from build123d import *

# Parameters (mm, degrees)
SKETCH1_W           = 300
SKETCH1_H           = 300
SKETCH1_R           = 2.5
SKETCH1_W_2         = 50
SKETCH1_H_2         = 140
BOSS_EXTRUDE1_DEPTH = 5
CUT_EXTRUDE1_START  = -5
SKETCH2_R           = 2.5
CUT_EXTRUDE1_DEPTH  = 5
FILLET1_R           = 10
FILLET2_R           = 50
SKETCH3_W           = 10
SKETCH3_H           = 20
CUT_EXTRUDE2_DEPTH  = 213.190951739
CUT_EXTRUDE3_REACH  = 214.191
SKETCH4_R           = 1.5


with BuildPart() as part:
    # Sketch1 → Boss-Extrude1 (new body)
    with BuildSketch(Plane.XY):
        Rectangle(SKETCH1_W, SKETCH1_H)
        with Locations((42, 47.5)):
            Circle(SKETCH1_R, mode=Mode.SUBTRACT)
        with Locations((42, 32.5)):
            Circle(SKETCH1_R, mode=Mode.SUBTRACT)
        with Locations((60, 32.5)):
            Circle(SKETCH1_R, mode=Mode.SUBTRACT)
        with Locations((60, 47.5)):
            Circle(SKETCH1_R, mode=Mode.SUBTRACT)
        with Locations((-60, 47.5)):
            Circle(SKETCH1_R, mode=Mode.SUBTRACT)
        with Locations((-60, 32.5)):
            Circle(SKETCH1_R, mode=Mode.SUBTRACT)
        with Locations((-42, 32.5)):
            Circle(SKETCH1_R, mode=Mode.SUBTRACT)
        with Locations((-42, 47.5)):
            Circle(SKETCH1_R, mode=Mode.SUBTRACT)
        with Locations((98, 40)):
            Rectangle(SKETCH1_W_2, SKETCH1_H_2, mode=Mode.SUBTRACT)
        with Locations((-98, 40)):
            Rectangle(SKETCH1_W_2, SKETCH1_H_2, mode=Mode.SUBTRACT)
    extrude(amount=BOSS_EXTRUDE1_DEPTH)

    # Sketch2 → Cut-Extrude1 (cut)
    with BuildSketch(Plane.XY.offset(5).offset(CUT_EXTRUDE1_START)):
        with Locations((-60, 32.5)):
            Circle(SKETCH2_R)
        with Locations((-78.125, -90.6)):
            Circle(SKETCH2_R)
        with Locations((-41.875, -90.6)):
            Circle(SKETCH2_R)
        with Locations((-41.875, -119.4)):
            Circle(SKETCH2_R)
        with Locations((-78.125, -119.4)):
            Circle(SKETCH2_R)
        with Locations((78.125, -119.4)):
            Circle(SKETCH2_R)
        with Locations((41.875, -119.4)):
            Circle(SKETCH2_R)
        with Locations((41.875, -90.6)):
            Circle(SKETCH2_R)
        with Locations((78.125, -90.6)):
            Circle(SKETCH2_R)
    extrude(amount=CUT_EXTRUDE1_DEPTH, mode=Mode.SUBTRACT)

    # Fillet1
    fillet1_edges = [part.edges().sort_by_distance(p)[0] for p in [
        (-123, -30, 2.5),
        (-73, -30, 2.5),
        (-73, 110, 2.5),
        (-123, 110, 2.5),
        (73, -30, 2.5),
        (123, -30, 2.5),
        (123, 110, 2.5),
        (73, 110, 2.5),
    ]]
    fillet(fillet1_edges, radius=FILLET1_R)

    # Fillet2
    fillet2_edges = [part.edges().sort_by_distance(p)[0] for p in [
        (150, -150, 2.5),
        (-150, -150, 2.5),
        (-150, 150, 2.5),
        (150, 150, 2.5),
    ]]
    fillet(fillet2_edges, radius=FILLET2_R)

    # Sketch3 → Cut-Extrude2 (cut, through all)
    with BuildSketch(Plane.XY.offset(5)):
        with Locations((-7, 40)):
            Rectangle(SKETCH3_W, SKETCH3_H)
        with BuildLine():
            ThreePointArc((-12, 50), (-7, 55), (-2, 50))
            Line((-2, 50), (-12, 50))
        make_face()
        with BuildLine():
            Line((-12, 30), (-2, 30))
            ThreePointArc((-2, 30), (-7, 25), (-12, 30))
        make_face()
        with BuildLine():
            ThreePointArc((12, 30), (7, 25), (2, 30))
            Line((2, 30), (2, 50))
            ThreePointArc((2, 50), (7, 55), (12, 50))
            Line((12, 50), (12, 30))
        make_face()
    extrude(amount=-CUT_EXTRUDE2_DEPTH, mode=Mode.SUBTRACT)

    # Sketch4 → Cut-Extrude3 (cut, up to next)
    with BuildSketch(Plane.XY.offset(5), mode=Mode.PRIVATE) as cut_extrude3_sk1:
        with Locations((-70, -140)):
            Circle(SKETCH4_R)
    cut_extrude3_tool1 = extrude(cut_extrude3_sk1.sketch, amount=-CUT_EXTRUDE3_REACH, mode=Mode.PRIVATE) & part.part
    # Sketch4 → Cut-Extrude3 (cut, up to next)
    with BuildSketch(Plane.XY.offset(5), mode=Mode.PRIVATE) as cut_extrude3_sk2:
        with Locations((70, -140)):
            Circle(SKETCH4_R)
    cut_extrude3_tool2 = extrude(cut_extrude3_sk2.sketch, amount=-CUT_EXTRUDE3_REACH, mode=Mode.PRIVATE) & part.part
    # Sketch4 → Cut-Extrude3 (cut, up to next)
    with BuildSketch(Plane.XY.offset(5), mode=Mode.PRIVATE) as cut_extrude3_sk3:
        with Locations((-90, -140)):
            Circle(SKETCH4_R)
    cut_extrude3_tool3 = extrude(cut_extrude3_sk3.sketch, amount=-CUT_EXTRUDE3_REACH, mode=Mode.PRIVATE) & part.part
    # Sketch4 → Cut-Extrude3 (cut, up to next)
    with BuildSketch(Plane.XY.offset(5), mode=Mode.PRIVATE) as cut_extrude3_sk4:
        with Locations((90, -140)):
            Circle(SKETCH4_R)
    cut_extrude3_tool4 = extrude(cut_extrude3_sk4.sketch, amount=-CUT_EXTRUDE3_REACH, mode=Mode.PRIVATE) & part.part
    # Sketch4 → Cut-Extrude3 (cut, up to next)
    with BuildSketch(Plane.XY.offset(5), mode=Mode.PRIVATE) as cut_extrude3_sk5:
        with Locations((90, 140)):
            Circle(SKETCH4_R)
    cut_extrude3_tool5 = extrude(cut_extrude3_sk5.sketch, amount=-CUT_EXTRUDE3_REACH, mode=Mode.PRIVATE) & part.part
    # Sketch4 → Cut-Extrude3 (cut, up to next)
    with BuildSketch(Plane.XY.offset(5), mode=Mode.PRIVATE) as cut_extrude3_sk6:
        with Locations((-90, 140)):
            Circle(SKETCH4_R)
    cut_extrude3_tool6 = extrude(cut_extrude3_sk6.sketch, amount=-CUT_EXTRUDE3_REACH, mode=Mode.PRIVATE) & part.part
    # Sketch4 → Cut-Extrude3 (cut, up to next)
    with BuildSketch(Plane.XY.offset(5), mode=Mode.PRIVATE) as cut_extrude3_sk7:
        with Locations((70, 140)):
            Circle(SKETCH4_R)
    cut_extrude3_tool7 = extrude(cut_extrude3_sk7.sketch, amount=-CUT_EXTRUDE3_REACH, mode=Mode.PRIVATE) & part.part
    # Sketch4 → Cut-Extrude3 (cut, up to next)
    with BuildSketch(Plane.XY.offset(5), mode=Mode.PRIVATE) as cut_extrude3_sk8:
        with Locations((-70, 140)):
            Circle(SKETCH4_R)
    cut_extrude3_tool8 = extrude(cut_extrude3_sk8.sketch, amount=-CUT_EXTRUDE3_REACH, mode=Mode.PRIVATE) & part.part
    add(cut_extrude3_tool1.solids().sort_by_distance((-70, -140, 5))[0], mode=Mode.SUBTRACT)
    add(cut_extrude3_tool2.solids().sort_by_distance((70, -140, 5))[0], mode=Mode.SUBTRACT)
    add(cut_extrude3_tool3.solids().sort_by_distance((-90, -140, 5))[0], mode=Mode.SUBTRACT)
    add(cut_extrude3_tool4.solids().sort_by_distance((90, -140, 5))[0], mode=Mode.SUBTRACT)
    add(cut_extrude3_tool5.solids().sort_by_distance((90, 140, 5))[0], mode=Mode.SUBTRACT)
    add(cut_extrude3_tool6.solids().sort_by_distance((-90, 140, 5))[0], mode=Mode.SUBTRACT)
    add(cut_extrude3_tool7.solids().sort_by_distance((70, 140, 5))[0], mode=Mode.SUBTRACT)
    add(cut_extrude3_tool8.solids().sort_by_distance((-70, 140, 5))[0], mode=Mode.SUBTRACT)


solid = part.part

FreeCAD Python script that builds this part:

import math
import FreeCAD as App
import Part
import Sketcher
from FreeCAD import Vector
Q = App.Units.Quantity


def edges_at(feature, points):
    """Names of the edges that pass closest to the given points."""
    edges = feature.Shape.Edges
    near = lambda p: min(range(len(edges)), key=lambda i: edges[i].distToShape(Part.Vertex(*p))[0])
    return sorted({f"Edge{near(p) + 1}" for p in points})

doc = App.newDocument("Part")
body = doc.addObject("PartDesign::Body", "Body")

# Sketch on XY plane
sketch1 = body.newObject("Sketcher::SketchObject", "Sketch")
sketch1.AttachmentSupport = (doc.getObject("XY_Plane"), [""])
sketch1.MapMode = "FlatFace"
sketch1.addGeometry([
    Part.LineSegment(Vector(-150, 150, 0), Vector(-150, -150, 0)),  # 0
    Part.LineSegment(Vector(-150, -150, 0), Vector(150, -150, 0)),  # 1
    Part.LineSegment(Vector(150, -150, 0), Vector(150, 150, 0)),  # 2
    Part.LineSegment(Vector(150, 150, 0), Vector(-150, 150, 0)),  # 3
    Part.Circle(Vector(-60, 32.5, 0), Vector(0, 0, 1), 2.5),  # 4
    Part.Circle(Vector(-42, 32.5, 0), Vector(0, 0, 1), 2.5),  # 5
    Part.Circle(Vector(42, 32.5, 0), Vector(0, 0, 1), 2.5),  # 6
    Part.Circle(Vector(60, 32.5, 0), Vector(0, 0, 1), 2.5),  # 7
    Part.LineSegment(Vector(-73, -30, 0), Vector(-123, -30, 0)),  # 8
    Part.LineSegment(Vector(-123, -30, 0), Vector(-123, 110, 0)),  # 9
    Part.LineSegment(Vector(-123, 110, 0), Vector(-73, 110, 0)),  # 10
    Part.LineSegment(Vector(-73, 110, 0), Vector(-73, -30, 0)),  # 11
    Part.Circle(Vector(-60, 47.5, 0), Vector(0, 0, 1), 2.5),  # 12
    Part.Circle(Vector(-42, 47.5, 0), Vector(0, 0, 1), 2.5),  # 13
    Part.Circle(Vector(42, 47.5, 0), Vector(0, 0, 1), 2.5),  # 14
    Part.Circle(Vector(60, 47.5, 0), Vector(0, 0, 1), 2.5),  # 15
    Part.LineSegment(Vector(123, -30, 0), Vector(73, -30, 0)),  # 16
    Part.LineSegment(Vector(73, -30, 0), Vector(73, 110, 0)),  # 17
    Part.LineSegment(Vector(73, 110, 0), Vector(123, 110, 0)),  # 18
    Part.LineSegment(Vector(123, 110, 0), Vector(123, -30, 0)),  # 19
], False)
sketch1.addConstraint([
    Sketcher.Constraint("Coincident", 0, 2, 1, 1),
    Sketcher.Constraint("Coincident", 1, 2, 2, 1),
    Sketcher.Constraint("Coincident", 2, 2, 3, 1),
    Sketcher.Constraint("Coincident", 3, 2, 0, 1),
    Sketcher.Constraint("Coincident", 8, 2, 9, 1),
    Sketcher.Constraint("Coincident", 9, 2, 10, 1),
    Sketcher.Constraint("Coincident", 10, 2, 11, 1),
    Sketcher.Constraint("Coincident", 11, 2, 8, 1),
    Sketcher.Constraint("Coincident", 16, 2, 17, 1),
    Sketcher.Constraint("Coincident", 17, 2, 18, 1),
    Sketcher.Constraint("Coincident", 18, 2, 19, 1),
    Sketcher.Constraint("Coincident", 19, 2, 16, 1),
    Sketcher.Constraint("Vertical", 0),
    Sketcher.Constraint("Horizontal", 1),
    Sketcher.Constraint("Vertical", 2),
    Sketcher.Constraint("Horizontal", 3),
    Sketcher.Constraint("Horizontal", 8),
    Sketcher.Constraint("Vertical", 9),
    Sketcher.Constraint("Horizontal", 10),
    Sketcher.Constraint("Vertical", 11),
    Sketcher.Constraint("Horizontal", 16),
    Sketcher.Constraint("Vertical", 17),
    Sketcher.Constraint("Horizontal", 18),
    Sketcher.Constraint("Vertical", 19),
    Sketcher.Constraint("Equal", 4, 5),
    Sketcher.Constraint("Equal", 5, 6),
    Sketcher.Constraint("Equal", 6, 7),
    Sketcher.Constraint("Equal", 7, 12),
    Sketcher.Constraint("Equal", 12, 13),
    Sketcher.Constraint("Equal", 13, 14),
    Sketcher.Constraint("Equal", 14, 15),
    Sketcher.Constraint("Symmetric", 0, 2, 2, 2, -1, 1),
    Sketcher.Constraint("Symmetric", 5, 3, 6, 3, -2),
    Sketcher.Constraint("Symmetric", 4, 3, 7, 3, -2),
    Sketcher.Constraint("Symmetric", 13, 3, 14, 3, -2),
    Sketcher.Constraint("Symmetric", 12, 3, 15, 3, -2),
    Sketcher.Constraint("Symmetric", 11, 2, 16, 2, -2),
    Sketcher.Constraint("Symmetric", 9, 2, 18, 2, -2),
    Sketcher.Constraint("Horizontal", 4, 3, 5, 3),
    Sketcher.Constraint("Horizontal", 12, 3, 13, 3),
    Sketcher.Constraint("Vertical", 4, 3, 12, 3),
    Sketcher.Constraint("Vertical", 5, 3, 13, 3),
    Sketcher.Constraint("Equal", 3, 0),
    Sketcher.Constraint("Diameter", 4, Q("5 mm")),
    Sketcher.Constraint("DistanceX", 1, 1, 1, 2, Q("300 mm")),
    Sketcher.Constraint("DistanceX", 8, 2, 8, 1, Q("50 mm")),
    Sketcher.Constraint("DistanceY", 9, 1, 9, 2, Q("140 mm")),
    Sketcher.Constraint("DistanceX", 4, 3, -1, 1, Q("60 mm")),
    Sketcher.Constraint("DistanceX", 5, 3, -1, 1, Q("42 mm")),
    Sketcher.Constraint("DistanceX", 8, 2, -1, 1, Q("123 mm")),
    Sketcher.Constraint("DistanceY", 8, 2, -1, 1, Q("30 mm")),
    Sketcher.Constraint("DistanceY", 4, 3, 12, 3, Q("15 mm")),
    Sketcher.Constraint("DistanceY", -1, 1, 4, 3, Q("32.5 mm")),
])
pad1 = body.newObject("PartDesign::Pad", "Pad")
pad1.Profile = sketch1
pad1.Length = 5

# Sketch on XY plane
sketch2 = body.newObject("Sketcher::SketchObject", "Sketch001")
sketch2.AttachmentSupport = (doc.getObject("XY_Plane"), [""])
sketch2.MapMode = "FlatFace"
sketch2.addGeometry([
    Part.Circle(Vector(-60, 32.5, 0), Vector(0, 0, 1), 2.5),  # 0
    Part.Circle(Vector(-78.1, -90.6, 0), Vector(0, 0, 1), 2.5),  # 1
    Part.Circle(Vector(-41.9, -90.6, 0), Vector(0, 0, 1), 2.5),  # 2
    Part.Circle(Vector(-41.9, -119.4, 0), Vector(0, 0, 1), 2.5),  # 3
    Part.Circle(Vector(-78.1, -119.4, 0), Vector(0, 0, 1), 2.5),  # 4
    Part.Circle(Vector(78.1, -119.4, 0), Vector(0, 0, 1), 2.5),  # 5
    Part.Circle(Vector(41.9, -119.4, 0), Vector(0, 0, 1), 2.5),  # 6
    Part.Circle(Vector(41.9, -90.6, 0), Vector(0, 0, 1), 2.5),  # 7
    Part.Circle(Vector(78.1, -90.6, 0), Vector(0, 0, 1), 2.5),  # 8
], False)
sketch2.addConstraint([
    Sketcher.Constraint("Equal", 0, 1),
    Sketcher.Constraint("Equal", 1, 2),
    Sketcher.Constraint("Equal", 2, 3),
    Sketcher.Constraint("Equal", 3, 4),
    Sketcher.Constraint("Equal", 4, 5),
    Sketcher.Constraint("Equal", 5, 6),
    Sketcher.Constraint("Equal", 6, 7),
    Sketcher.Constraint("Equal", 7, 8),
    Sketcher.Constraint("Symmetric", 4, 3, 5, 3, -2),
    Sketcher.Constraint("Symmetric", 3, 3, 6, 3, -2),
    Sketcher.Constraint("Symmetric", 2, 3, 7, 3, -2),
    Sketcher.Constraint("Symmetric", 1, 3, 8, 3, -2),
    Sketcher.Constraint("Horizontal", 1, 3, 2, 3),
    Sketcher.Constraint("Horizontal", 3, 3, 4, 3),
    Sketcher.Constraint("Vertical", 2, 3, 3, 3),
    Sketcher.Constraint("Vertical", 1, 3, 4, 3),
    Sketcher.Constraint("Diameter", 0, Q("5 mm")),
    Sketcher.Constraint("DistanceX", 0, 3, -1, 1, Q("60 mm")),
    Sketcher.Constraint("DistanceX", 3, 3, 5, 3, Q("120 mm")),
    Sketcher.Constraint("DistanceY", -1, 1, 0, 3, Q("32.5 mm")),
    Sketcher.Constraint("DistanceY", 1, 3, -1, 1, Q("90.6 mm")),
    Sketcher.Constraint("DistanceY", 3, 3, -1, 1, Q("119.4 mm")),
    Sketcher.Constraint("DistanceX", 1, 3, 2, 3, Q("36.25 mm")),
])
pocket1 = body.newObject("PartDesign::Pocket", "Pocket")
pocket1.Profile = sketch2
pocket1.Length = 5
pocket1.Reversed = True
doc.recompute()

fillet = body.newObject("PartDesign::Fillet", "Fillet")
fillet.Base = (pocket1, edges_at(pocket1, [
    (-123, -30, 2.5),
    (-73, -30, 2.5),
    (-73, 110, 2.5),
    (-123, 110, 2.5),
    (73, -30, 2.5),
    (123, -30, 2.5),
    (123, 110, 2.5),
    (73, 110, 2.5),
]))
fillet.Radius = 10
doc.recompute()

fillet2 = body.newObject("PartDesign::Fillet", "Fillet001")
fillet2.Base = (fillet, edges_at(fillet, [
    (150, -150, 2.5),
    (-150, -150, 2.5),
    (-150, 150, 2.5),
    (150, 150, 2.5),
]))
fillet2.Radius = 50

# Sketch on XY plane
sketch3 = body.newObject("Sketcher::SketchObject", "Sketch002")
sketch3.AttachmentSupport = (doc.getObject("XY_Plane"), [""])
sketch3.MapMode = "FlatFace"
sketch3.AttachmentOffset = App.Placement(Vector(0, 0, 5), App.Rotation())
sketch3.addGeometry([
    Part.LineSegment(Vector(-12, 50, 0), Vector(-12, 30, 0)),  # 0
    Part.ArcOfCircle(Part.Circle(Vector(-7, 30, 0), Vector(0, 0, 1), 5), math.radians(180), math.radians(360)),  # 1
    Part.LineSegment(Vector(-2, 30, 0), Vector(-2, 50, 0)),  # 2
    Part.ArcOfCircle(Part.Circle(Vector(-7, 50, 0), Vector(0, 0, 1), 5), math.radians(0), math.radians(180)),  # 3
    Part.ArcOfCircle(Part.Circle(Vector(7, 30, 0), Vector(0, 0, 1), 5), math.radians(180), math.radians(360)),  # 4
    Part.LineSegment(Vector(12, 30, 0), Vector(12, 50, 0)),  # 5
    Part.ArcOfCircle(Part.Circle(Vector(7, 50, 0), Vector(0, 0, 1), 5), math.radians(0), math.radians(180)),  # 6
    Part.LineSegment(Vector(2, 50, 0), Vector(2, 30, 0)),  # 7
], False)
sketch3.addConstraint([
    Sketcher.Constraint("Tangent", 0, 2, 1, 1),
    Sketcher.Constraint("Tangent", 1, 2, 2, 1),
    Sketcher.Constraint("Tangent", 2, 2, 3, 1),
    Sketcher.Constraint("Tangent", 3, 2, 0, 1),
    Sketcher.Constraint("Tangent", 4, 2, 5, 1),
    Sketcher.Constraint("Tangent", 5, 2, 6, 1),
    Sketcher.Constraint("Tangent", 6, 2, 7, 1),
    Sketcher.Constraint("Tangent", 7, 2, 4, 1),
    Sketcher.Constraint("Vertical", 0),
    Sketcher.Constraint("Vertical", 2),
    Sketcher.Constraint("Vertical", 5),
    Sketcher.Constraint("Vertical", 7),
    Sketcher.Constraint("Equal", 3, 4),
    Sketcher.Constraint("Symmetric", 1, 3, 4, 3, -2),
    Sketcher.Constraint("Horizontal", 3, 3, 6, 3),
    Sketcher.Constraint("Radius", 1, Q("5 mm")),
    Sketcher.Constraint("DistanceY", 0, 2, 0, 1, Q("20 mm")),
    Sketcher.Constraint("DistanceX", 1, 3, -1, 1, Q("7 mm")),
    Sketcher.Constraint("DistanceY", -1, 1, 1, 3, Q("30 mm")),
])
pocket2 = body.newObject("PartDesign::Pocket", "Pocket001")
pocket2.Profile = sketch3
pocket2.Type = "ThroughAll"

# Sketch on XY plane
sketch4 = body.newObject("Sketcher::SketchObject", "Sketch003")
sketch4.AttachmentSupport = (doc.getObject("XY_Plane"), [""])
sketch4.MapMode = "FlatFace"
sketch4.AttachmentOffset = App.Placement(Vector(0, 0, 5), App.Rotation())
sketch4.addGeometry(Part.Circle(Vector(-70, -140, 0), Vector(0, 0, 1), 1.5), False)
sketch4.addConstraint([
    Sketcher.Constraint("Diameter", 0, Q("3 mm")),
    Sketcher.Constraint("DistanceX", 0, 3, -1, 1, Q("70 mm")),
    Sketcher.Constraint("DistanceY", 0, 3, -1, 1, Q("140 mm")),
])
pocket3 = body.newObject("PartDesign::Pocket", "Pocket002")
pocket3.Profile = sketch4
pocket3.Type = "UpToFirst"

# Sketch on XY plane
sketch5 = body.newObject("Sketcher::SketchObject", "Sketch004")
sketch5.AttachmentSupport = (doc.getObject("XY_Plane"), [""])
sketch5.MapMode = "FlatFace"
sketch5.AttachmentOffset = App.Placement(Vector(0, 0, 5), App.Rotation())
sketch5.addGeometry(Part.Circle(Vector(70, -140, 0), Vector(0, 0, 1), 1.5), False)
sketch5.addConstraint([
    Sketcher.Constraint("Diameter", 0, Q("3 mm")),
    Sketcher.Constraint("DistanceX", -1, 1, 0, 3, Q("70 mm")),
    Sketcher.Constraint("DistanceY", 0, 3, -1, 1, Q("140 mm")),
])
pocket4 = body.newObject("PartDesign::Pocket", "Pocket003")
pocket4.Profile = sketch5
pocket4.Type = "UpToFirst"

# Sketch on XY plane
sketch6 = body.newObject("Sketcher::SketchObject", "Sketch005")
sketch6.AttachmentSupport = (doc.getObject("XY_Plane"), [""])
sketch6.MapMode = "FlatFace"
sketch6.AttachmentOffset = App.Placement(Vector(0, 0, 5), App.Rotation())
sketch6.addGeometry(Part.Circle(Vector(-90, -140, 0), Vector(0, 0, 1), 1.5), False)
sketch6.addConstraint([
    Sketcher.Constraint("Diameter", 0, Q("3 mm")),
    Sketcher.Constraint("DistanceX", 0, 3, -1, 1, Q("90 mm")),
    Sketcher.Constraint("DistanceY", 0, 3, -1, 1, Q("140 mm")),
])
pocket5 = body.newObject("PartDesign::Pocket", "Pocket004")
pocket5.Profile = sketch6
pocket5.Type = "UpToFirst"

# Sketch on XY plane
sketch7 = body.newObject("Sketcher::SketchObject", "Sketch006")
sketch7.AttachmentSupport = (doc.getObject("XY_Plane"), [""])
sketch7.MapMode = "FlatFace"
sketch7.AttachmentOffset = App.Placement(Vector(0, 0, 5), App.Rotation())
sketch7.addGeometry(Part.Circle(Vector(90, -140, 0), Vector(0, 0, 1), 1.5), False)
sketch7.addConstraint([
    Sketcher.Constraint("Diameter", 0, Q("3 mm")),
    Sketcher.Constraint("DistanceX", -1, 1, 0, 3, Q("90 mm")),
    Sketcher.Constraint("DistanceY", 0, 3, -1, 1, Q("140 mm")),
])
pocket6 = body.newObject("PartDesign::Pocket", "Pocket005")
pocket6.Profile = sketch7
pocket6.Type = "UpToFirst"

# Sketch on XY plane
sketch8 = body.newObject("Sketcher::SketchObject", "Sketch007")
sketch8.AttachmentSupport = (doc.getObject("XY_Plane"), [""])
sketch8.MapMode = "FlatFace"
sketch8.AttachmentOffset = App.Placement(Vector(0, 0, 5), App.Rotation())
sketch8.addGeometry(Part.Circle(Vector(90, 140, 0), Vector(0, 0, 1), 1.5), False)
sketch8.addConstraint([
    Sketcher.Constraint("Diameter", 0, Q("3 mm")),
    Sketcher.Constraint("DistanceX", -1, 1, 0, 3, Q("90 mm")),
    Sketcher.Constraint("DistanceY", -1, 1, 0, 3, Q("140 mm")),
])
pocket7 = body.newObject("PartDesign::Pocket", "Pocket006")
pocket7.Profile = sketch8
pocket7.Type = "UpToFirst"

# Sketch on XY plane
sketch9 = body.newObject("Sketcher::SketchObject", "Sketch008")
sketch9.AttachmentSupport = (doc.getObject("XY_Plane"), [""])
sketch9.MapMode = "FlatFace"
sketch9.AttachmentOffset = App.Placement(Vector(0, 0, 5), App.Rotation())
sketch9.addGeometry(Part.Circle(Vector(-90, 140, 0), Vector(0, 0, 1), 1.5), False)
sketch9.addConstraint([
    Sketcher.Constraint("Diameter", 0, Q("3 mm")),
    Sketcher.Constraint("DistanceX", 0, 3, -1, 1, Q("90 mm")),
    Sketcher.Constraint("DistanceY", -1, 1, 0, 3, Q("140 mm")),
])
pocket8 = body.newObject("PartDesign::Pocket", "Pocket007")
pocket8.Profile = sketch9
pocket8.Type = "UpToFirst"

# Sketch on XY plane
sketch10 = body.newObject("Sketcher::SketchObject", "Sketch009")
sketch10.AttachmentSupport = (doc.getObject("XY_Plane"), [""])
sketch10.MapMode = "FlatFace"
sketch10.AttachmentOffset = App.Placement(Vector(0, 0, 5), App.Rotation())
sketch10.addGeometry(Part.Circle(Vector(70, 140, 0), Vector(0, 0, 1), 1.5), False)
sketch10.addConstraint([
    Sketcher.Constraint("Diameter", 0, Q("3 mm")),
    Sketcher.Constraint("DistanceX", -1, 1, 0, 3, Q("70 mm")),
    Sketcher.Constraint("DistanceY", -1, 1, 0, 3, Q("140 mm")),
])
pocket9 = body.newObject("PartDesign::Pocket", "Pocket008")
pocket9.Profile = sketch10
pocket9.Type = "UpToFirst"

# Sketch on XY plane
sketch11 = body.newObject("Sketcher::SketchObject", "Sketch010")
sketch11.AttachmentSupport = (doc.getObject("XY_Plane"), [""])
sketch11.MapMode = "FlatFace"
sketch11.AttachmentOffset = App.Placement(Vector(0, 0, 5), App.Rotation())
sketch11.addGeometry(Part.Circle(Vector(-70, 140, 0), Vector(0, 0, 1), 1.5), False)
sketch11.addConstraint([
    Sketcher.Constraint("Diameter", 0, Q("3 mm")),
    Sketcher.Constraint("DistanceX", 0, 3, -1, 1, Q("70 mm")),
    Sketcher.Constraint("DistanceY", -1, 1, 0, 3, Q("140 mm")),
])
pocket10 = body.newObject("PartDesign::Pocket", "Pocket009")
pocket10.Profile = sketch11
pocket10.Type = "UpToFirst"

doc.recompute()
